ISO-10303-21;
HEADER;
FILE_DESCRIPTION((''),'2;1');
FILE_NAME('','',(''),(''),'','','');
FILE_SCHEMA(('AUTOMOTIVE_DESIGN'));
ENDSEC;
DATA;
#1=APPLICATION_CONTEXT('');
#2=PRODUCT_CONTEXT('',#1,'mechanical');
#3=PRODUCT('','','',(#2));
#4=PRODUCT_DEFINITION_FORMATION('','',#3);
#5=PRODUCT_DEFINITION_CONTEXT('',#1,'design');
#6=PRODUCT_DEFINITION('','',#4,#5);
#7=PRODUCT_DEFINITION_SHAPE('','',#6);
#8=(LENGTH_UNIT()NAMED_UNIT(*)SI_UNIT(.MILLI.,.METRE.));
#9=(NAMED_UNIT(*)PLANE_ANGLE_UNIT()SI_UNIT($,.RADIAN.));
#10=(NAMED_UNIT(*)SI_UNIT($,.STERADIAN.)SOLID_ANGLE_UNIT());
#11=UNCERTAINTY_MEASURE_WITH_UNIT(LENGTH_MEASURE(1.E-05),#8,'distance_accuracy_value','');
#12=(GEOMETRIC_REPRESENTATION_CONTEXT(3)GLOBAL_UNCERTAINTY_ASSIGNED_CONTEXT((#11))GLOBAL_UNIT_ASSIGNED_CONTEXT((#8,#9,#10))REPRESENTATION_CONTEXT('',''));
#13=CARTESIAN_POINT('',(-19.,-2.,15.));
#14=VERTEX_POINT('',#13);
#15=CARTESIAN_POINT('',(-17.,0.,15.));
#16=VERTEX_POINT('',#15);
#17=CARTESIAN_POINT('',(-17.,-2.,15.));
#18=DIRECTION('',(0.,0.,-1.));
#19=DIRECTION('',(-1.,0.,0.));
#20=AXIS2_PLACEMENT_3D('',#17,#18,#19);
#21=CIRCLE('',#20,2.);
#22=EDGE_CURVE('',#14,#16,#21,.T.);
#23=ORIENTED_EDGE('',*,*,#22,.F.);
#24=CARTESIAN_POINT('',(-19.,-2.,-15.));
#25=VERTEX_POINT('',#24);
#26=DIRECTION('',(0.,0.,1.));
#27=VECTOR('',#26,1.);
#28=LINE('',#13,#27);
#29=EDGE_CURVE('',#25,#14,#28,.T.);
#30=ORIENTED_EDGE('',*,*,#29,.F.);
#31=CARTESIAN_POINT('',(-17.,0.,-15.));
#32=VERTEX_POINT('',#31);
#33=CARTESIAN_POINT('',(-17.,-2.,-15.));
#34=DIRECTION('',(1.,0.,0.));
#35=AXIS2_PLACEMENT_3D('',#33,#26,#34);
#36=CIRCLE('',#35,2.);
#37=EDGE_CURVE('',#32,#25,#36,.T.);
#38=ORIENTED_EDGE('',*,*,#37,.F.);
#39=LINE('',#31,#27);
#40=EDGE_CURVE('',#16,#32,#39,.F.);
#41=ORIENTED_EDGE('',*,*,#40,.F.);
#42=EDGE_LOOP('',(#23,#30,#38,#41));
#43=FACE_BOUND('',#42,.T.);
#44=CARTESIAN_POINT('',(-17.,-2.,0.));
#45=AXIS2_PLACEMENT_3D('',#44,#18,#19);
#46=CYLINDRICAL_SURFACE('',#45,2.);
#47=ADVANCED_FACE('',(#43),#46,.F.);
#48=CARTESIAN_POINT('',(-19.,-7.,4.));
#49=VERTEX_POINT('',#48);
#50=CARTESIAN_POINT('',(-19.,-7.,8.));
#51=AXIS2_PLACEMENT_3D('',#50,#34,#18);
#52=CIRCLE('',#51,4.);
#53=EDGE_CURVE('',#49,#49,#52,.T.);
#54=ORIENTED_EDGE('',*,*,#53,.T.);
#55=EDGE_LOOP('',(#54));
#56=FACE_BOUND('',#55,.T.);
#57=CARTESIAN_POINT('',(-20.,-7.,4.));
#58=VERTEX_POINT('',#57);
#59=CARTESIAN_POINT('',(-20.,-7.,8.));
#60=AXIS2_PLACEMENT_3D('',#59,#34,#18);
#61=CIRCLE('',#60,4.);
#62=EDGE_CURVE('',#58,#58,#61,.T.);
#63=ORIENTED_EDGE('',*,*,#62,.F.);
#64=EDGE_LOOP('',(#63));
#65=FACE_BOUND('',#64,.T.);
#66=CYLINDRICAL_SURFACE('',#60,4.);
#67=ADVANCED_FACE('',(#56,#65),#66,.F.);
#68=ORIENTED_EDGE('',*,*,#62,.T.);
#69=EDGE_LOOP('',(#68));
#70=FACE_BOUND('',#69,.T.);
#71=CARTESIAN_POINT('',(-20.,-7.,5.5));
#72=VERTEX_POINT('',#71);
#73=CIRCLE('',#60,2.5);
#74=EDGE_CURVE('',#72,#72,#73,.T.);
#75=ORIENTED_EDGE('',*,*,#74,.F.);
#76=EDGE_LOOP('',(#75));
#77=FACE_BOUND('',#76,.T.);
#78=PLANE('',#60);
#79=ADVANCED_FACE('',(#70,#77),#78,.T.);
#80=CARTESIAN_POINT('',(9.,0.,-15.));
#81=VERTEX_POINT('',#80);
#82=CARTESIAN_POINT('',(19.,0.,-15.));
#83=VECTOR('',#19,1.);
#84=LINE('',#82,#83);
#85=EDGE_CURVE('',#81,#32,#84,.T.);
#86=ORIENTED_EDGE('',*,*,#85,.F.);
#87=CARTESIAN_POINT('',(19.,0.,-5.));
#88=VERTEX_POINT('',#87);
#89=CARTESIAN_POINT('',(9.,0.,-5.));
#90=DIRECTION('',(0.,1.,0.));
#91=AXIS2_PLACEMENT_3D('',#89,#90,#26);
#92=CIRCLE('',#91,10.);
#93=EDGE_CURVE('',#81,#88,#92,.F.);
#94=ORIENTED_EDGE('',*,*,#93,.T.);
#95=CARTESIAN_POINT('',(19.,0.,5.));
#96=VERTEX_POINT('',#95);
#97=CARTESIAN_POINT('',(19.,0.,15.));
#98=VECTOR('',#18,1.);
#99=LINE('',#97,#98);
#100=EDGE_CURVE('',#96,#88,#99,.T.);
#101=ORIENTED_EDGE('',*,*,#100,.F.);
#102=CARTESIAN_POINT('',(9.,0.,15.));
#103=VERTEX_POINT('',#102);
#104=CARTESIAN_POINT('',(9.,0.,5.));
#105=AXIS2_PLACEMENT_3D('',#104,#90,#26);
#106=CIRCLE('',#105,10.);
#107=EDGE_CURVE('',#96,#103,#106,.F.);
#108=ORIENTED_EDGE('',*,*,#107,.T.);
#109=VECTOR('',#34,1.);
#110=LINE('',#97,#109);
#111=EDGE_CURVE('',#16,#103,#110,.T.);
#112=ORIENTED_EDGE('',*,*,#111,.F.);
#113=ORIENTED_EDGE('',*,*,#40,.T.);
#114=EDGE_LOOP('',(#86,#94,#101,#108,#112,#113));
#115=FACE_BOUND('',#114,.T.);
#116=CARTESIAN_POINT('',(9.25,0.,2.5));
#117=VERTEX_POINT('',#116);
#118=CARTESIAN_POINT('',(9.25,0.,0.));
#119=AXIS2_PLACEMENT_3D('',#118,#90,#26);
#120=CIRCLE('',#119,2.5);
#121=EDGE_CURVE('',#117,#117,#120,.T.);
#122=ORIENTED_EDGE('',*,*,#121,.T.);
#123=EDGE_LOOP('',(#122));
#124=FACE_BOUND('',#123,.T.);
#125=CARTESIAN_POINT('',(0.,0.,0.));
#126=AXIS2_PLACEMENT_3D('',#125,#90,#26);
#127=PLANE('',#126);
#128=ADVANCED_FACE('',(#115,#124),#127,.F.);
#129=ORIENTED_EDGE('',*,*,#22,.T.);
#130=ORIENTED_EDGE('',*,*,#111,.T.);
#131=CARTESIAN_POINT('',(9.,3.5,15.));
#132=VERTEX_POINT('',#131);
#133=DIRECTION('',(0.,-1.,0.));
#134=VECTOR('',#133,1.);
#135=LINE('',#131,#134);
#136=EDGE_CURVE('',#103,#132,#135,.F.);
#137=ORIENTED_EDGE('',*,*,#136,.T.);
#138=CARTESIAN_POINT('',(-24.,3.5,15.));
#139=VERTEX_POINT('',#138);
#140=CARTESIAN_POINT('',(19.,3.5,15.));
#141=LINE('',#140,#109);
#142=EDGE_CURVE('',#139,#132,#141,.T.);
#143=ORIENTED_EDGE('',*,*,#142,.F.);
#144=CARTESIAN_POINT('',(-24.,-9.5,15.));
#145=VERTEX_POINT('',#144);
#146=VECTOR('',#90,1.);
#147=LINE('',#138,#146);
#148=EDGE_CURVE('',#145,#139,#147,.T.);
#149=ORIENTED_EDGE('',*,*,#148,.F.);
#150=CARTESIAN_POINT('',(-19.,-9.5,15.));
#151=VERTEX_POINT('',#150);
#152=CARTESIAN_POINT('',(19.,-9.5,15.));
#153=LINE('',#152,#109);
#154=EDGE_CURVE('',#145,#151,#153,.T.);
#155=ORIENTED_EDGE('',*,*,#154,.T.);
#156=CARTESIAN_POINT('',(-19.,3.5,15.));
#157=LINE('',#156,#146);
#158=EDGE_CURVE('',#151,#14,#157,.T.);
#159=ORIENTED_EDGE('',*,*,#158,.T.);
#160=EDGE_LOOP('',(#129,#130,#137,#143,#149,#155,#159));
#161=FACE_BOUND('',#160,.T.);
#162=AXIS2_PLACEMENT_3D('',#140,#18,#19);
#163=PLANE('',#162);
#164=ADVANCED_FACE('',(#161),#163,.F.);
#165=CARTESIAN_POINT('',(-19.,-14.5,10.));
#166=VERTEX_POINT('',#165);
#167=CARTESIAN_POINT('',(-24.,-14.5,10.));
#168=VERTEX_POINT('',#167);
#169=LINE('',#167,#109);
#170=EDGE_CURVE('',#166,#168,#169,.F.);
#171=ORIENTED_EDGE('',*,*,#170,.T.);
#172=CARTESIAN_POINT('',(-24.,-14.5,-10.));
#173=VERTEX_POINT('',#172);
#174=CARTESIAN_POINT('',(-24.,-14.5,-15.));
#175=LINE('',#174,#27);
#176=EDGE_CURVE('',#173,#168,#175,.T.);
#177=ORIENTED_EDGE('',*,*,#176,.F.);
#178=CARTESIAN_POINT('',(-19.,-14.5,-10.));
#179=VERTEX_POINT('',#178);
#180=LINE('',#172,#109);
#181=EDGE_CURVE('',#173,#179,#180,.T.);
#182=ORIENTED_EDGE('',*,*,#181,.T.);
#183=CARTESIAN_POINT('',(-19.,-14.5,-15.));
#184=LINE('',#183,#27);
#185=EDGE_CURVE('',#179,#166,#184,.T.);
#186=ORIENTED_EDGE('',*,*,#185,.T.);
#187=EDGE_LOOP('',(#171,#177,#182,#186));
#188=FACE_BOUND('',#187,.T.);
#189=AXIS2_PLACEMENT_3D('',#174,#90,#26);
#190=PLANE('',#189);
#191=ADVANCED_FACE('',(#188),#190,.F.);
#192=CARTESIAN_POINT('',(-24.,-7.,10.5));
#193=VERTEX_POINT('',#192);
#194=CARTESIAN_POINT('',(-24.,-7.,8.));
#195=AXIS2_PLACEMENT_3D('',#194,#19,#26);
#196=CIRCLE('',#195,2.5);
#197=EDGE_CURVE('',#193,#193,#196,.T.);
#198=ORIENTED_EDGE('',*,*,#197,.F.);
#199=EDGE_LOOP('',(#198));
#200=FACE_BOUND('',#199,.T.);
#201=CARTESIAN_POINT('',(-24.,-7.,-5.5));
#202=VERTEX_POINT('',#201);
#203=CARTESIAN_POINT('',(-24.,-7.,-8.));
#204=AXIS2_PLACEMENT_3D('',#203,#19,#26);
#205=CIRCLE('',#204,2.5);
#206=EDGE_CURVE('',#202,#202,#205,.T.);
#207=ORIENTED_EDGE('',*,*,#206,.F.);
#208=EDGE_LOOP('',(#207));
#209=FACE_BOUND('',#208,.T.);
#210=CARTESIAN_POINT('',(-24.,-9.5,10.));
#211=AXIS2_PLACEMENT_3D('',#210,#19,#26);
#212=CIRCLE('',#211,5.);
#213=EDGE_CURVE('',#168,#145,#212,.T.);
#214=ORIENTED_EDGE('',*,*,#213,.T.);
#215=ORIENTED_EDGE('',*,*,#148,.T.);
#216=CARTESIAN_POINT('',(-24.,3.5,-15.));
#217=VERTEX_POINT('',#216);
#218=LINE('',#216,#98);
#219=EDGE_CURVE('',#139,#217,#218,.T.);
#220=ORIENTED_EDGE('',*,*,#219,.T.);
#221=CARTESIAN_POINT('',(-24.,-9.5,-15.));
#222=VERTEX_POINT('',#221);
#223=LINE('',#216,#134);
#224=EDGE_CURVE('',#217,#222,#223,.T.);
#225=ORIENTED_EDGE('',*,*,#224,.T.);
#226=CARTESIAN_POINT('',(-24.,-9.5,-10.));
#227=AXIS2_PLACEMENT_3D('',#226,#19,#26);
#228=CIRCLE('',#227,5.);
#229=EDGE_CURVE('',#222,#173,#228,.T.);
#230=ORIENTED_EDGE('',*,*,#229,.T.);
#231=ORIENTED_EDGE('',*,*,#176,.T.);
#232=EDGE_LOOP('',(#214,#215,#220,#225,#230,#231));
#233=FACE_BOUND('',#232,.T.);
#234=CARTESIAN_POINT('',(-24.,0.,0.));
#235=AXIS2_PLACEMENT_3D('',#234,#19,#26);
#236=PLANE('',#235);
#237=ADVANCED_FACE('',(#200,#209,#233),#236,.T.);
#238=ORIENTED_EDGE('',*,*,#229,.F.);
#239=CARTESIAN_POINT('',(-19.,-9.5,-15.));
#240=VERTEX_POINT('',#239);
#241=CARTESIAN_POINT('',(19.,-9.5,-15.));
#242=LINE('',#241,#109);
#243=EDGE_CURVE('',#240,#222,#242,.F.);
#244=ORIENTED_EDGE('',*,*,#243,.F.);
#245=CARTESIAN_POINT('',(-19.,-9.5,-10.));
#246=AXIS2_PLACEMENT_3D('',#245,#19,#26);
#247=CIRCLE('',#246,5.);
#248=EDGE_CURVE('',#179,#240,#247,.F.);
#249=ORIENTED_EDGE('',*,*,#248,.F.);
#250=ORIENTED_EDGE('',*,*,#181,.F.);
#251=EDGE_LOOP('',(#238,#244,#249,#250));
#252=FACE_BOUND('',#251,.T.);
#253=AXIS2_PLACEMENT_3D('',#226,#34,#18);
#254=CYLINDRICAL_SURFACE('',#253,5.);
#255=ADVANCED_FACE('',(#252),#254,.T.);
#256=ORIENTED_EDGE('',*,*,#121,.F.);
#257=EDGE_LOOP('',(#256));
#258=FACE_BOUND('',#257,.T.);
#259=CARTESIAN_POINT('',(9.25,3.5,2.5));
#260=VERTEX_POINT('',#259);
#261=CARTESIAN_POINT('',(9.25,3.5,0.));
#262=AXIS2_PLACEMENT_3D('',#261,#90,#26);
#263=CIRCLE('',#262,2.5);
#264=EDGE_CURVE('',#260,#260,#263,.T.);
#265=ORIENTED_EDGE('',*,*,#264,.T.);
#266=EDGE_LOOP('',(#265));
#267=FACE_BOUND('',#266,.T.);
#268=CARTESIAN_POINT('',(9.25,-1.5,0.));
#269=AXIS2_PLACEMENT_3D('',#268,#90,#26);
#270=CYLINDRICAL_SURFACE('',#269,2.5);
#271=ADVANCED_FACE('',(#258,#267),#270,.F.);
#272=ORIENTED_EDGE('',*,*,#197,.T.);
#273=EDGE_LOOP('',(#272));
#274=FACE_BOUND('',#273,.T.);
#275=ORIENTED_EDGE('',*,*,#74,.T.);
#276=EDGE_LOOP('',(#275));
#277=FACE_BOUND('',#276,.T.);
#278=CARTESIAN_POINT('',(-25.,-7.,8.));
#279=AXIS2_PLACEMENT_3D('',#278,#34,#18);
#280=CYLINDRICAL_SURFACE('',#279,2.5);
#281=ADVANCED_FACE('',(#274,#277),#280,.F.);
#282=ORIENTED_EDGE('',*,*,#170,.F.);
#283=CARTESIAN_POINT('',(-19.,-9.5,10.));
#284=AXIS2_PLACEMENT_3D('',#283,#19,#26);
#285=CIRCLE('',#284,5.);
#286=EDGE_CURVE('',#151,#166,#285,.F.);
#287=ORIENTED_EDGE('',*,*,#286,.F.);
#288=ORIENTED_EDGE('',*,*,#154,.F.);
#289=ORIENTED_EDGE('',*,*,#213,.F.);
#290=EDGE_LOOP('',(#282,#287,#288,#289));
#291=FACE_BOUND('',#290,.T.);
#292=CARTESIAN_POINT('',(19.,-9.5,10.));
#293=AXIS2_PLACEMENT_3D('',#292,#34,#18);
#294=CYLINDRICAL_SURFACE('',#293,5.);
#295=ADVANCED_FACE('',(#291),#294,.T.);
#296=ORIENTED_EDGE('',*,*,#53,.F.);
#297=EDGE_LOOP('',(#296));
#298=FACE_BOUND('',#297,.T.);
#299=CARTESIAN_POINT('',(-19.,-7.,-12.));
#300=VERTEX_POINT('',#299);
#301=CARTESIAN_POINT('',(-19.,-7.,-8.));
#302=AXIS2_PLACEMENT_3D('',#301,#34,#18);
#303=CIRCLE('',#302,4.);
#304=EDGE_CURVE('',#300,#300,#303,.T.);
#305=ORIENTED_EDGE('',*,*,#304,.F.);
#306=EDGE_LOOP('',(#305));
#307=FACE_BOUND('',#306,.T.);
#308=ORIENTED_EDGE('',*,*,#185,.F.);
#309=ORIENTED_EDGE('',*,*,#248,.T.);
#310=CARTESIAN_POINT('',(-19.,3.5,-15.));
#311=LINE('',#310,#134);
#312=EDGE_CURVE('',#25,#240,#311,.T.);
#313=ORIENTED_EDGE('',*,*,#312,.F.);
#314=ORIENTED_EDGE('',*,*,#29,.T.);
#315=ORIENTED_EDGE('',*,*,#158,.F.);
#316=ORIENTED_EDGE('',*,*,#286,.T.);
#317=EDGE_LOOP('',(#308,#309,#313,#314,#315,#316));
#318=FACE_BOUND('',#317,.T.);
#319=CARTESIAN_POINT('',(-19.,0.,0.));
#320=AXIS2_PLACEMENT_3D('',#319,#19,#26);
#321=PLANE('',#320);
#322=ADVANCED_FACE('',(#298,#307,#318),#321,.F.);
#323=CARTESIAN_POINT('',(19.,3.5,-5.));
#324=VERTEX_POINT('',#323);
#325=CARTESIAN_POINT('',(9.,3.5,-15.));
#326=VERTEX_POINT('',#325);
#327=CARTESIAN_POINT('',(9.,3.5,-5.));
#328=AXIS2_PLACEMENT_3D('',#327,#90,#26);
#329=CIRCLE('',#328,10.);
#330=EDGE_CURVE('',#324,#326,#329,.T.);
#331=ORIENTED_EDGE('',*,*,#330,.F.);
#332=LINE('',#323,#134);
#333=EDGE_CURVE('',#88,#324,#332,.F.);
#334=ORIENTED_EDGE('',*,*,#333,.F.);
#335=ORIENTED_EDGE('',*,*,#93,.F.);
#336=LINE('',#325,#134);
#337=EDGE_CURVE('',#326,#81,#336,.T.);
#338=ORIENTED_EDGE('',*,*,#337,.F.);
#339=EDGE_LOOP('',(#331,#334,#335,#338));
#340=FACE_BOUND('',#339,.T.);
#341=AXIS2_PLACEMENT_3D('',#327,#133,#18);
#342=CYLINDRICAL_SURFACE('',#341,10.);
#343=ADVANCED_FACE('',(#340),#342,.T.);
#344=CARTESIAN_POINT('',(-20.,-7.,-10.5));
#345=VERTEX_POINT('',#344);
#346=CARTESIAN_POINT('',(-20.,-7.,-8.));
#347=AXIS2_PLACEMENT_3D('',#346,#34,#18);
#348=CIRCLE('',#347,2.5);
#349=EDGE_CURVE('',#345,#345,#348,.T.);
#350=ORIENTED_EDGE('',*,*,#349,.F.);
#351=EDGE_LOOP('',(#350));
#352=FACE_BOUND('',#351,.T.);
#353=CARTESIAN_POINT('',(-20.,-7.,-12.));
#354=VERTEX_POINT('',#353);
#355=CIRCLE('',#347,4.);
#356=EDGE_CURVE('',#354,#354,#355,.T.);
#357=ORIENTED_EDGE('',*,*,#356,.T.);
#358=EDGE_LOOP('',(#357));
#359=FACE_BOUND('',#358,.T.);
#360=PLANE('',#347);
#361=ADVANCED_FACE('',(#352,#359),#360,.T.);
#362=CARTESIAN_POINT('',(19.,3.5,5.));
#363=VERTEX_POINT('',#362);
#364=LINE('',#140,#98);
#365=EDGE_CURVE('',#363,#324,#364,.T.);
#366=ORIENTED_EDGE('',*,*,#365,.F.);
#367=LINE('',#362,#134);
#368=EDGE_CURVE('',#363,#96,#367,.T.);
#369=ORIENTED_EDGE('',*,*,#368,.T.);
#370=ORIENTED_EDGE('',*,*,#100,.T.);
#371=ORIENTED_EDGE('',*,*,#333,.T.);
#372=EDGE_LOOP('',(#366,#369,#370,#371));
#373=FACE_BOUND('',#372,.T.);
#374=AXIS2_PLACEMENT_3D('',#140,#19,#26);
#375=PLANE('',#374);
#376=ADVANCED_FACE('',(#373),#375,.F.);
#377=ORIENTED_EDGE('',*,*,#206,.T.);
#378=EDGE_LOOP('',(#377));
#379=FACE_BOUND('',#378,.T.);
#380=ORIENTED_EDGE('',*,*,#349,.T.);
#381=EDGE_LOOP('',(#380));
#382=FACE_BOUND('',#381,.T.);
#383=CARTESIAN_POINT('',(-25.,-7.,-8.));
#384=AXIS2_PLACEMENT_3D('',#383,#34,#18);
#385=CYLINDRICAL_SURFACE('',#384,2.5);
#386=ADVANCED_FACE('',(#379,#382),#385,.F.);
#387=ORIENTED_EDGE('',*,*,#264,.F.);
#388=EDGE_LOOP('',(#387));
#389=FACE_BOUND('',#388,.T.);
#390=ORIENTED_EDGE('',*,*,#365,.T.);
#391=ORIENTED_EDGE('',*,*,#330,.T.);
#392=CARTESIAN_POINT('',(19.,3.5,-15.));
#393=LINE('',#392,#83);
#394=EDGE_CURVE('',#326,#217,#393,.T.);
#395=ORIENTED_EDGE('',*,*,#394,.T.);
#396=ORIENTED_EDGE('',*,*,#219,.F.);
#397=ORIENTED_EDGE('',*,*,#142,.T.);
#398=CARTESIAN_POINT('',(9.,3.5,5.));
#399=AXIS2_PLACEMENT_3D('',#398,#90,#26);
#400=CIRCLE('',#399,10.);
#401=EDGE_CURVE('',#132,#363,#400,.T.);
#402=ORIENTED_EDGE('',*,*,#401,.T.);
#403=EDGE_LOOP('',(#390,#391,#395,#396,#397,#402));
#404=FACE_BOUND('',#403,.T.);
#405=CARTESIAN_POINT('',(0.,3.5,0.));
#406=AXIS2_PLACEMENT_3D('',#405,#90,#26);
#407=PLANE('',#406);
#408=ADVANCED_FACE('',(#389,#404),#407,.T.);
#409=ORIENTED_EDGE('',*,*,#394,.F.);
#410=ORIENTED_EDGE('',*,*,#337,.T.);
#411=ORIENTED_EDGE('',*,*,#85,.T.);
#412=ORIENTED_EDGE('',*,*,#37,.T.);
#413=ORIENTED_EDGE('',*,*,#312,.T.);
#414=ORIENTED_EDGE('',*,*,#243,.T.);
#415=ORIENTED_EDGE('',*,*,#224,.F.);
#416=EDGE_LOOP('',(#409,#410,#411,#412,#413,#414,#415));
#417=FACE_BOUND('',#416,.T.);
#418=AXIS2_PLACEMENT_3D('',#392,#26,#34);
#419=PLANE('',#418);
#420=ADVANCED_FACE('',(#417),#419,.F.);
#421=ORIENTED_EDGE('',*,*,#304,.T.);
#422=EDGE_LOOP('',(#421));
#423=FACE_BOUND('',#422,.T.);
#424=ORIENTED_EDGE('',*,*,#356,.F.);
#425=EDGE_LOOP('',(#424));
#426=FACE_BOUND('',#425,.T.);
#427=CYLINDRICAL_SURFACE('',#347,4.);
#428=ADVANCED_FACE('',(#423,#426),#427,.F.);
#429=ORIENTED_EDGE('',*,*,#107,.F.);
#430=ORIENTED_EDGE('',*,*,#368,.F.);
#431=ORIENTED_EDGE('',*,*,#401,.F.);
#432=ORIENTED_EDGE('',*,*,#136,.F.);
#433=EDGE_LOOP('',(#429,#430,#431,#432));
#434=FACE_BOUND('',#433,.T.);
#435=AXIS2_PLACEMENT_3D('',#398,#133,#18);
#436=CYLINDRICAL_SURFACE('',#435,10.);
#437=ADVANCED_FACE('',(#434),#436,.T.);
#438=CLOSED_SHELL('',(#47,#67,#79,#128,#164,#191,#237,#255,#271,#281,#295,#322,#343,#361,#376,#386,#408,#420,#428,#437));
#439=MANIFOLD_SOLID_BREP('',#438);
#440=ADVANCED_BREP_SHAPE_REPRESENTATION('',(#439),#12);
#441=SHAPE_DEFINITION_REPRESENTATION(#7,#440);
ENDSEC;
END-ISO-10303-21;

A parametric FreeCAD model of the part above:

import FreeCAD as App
import Part
import Sketcher

V = App.Vector
Q = App.Units.Quantity


def edges_at(feature, points):
    """Names of the edges that pass closest to the given points."""
    edges = feature.Shape.Edges
    near = lambda p: min(range(len(edges)), key=lambda i: edges[i].distToShape(Part.Vertex(*p))[0])
    return sorted({f"Edge{near(p) + 1}" for p in points})


def add_polygon(sketch, points):
    """Adds a closed chain of lines whose ends are joined by coincident constraints."""
    first, n = sketch.GeometryCount, len(points)
    for a, b in zip(points, points[1:] + points[:1]):
        sketch.addGeometry(Part.LineSegment(App.Vector(*a, 0), App.Vector(*b, 0)), False)
    for i in range(n):
        sketch.addConstraint(Sketcher.Constraint("Coincident", first + i, 2, first + (i + 1) % n, 1))

doc = App.newDocument("Part")
body = doc.addObject("PartDesign::Body", "Body")

sketch1 = body.newObject("Sketcher::SketchObject", "Sketch")
sketch1.AttachmentSupport = (doc.getObject("XZ_Plane"), [""])
sketch1.MapMode = "FlatFace"
add_polygon(sketch1, [(-19, -15), (-19, 15), (19, 15), (19, -15)])
sketch1.addConstraint(Sketcher.Constraint("Vertical", 0))
sketch1.addConstraint(Sketcher.Constraint("Horizontal", 1))
sketch1.addConstraint(Sketcher.Constraint("Vertical", 2))
sketch1.addConstraint(Sketcher.Constraint("Horizontal", 3))
sketch1.addConstraint(Sketcher.Constraint("Symmetric", 0, 2, 2, 2, -1, 1))
sketch1.addConstraint(Sketcher.Constraint("DistanceX", 1, 1, 1, 2, Q("38 mm")))
sketch1.addConstraint(Sketcher.Constraint("DistanceY", 0, 1, 0, 2, Q("30 mm")))
pad1 = body.newObject("PartDesign::Pad", "Pad")
pad1.Profile = sketch1
pad1.Length = 3.5
pad1.Reversed = True

sketch2 = body.newObject("Sketcher::SketchObject", "Sketch001")
sketch2.AttachmentSupport = (doc.getObject("YZ_Plane"), [""])
sketch2.MapMode = "FlatFace"
sketch2.AttachmentOffset = App.Placement(V(0, 0, -19), App.Rotation())
add_polygon(sketch2, [(4, -15), (-14, -15), (-14, 15), (4, 15)])
sketch2.addConstraint(Sketcher.Constraint("Horizontal", 0))
sketch2.addConstraint(Sketcher.Constraint("Vertical", 1))
sketch2.addConstraint(Sketcher.Constraint("Horizontal", 2))
sketch2.addConstraint(Sketcher.Constraint("Vertical", 3))
sketch2.addConstraint(Sketcher.Constraint("DistanceX", 0, 2, 0, 1, Q("18 mm")))
sketch2.addConstraint(Sketcher.Constraint("DistanceY", 1, 1, 1, 2, Q("30 mm")))
sketch2.addConstraint(Sketcher.Constraint("DistanceY", 0, 2, -1, 1, Q("15 mm")))
sketch2.addConstraint(Sketcher.Constraint("DistanceX", 0, 2, -1, 1, Q("14.5 mm")))
pad2 = body.newObject("PartDesign::Pad", "Pad001")
pad2.Profile = sketch2
pad2.Length = 5
pad2.Reversed = True

sketch3 = body.newObject("Sketcher::SketchObject", "Sketch002")
sketch3.AttachmentSupport = (doc.getObject("YZ_Plane"), [""])
sketch3.MapMode = "FlatFace"
sketch3.AttachmentOffset = App.Placement(V(0, 0, -19), App.Rotation())
sketch3.addGeometry(Part.Circle(V(-7, 8, 0), V(0, 0, 1), 4), False)
sketch3.addGeometry(Part.Circle(V(-7, -8, 0), V(0, 0, 1), 4), False)
sketch3.addConstraint(Sketcher.Constraint("Equal", 0, 1))
sketch3.addConstraint(Sketcher.Constraint("Symmetric", 0, 3, 1, 3, -1))
sketch3.addConstraint(Sketcher.Constraint("Diameter", 0, Q("8 mm")))
sketch3.addConstraint(Sketcher.Constraint("DistanceX", 0, 3, -1, 1, Q("7 mm")))
sketch3.addConstraint(Sketcher.Constraint("DistanceY", -1, 1, 0, 3, Q("8 mm")))
pocket1 = body.newObject("PartDesign::Pocket", "Pocket")
pocket1.Profile = sketch3
pocket1.Length = 1

sketch4 = body.newObject("Sketcher::SketchObject", "Sketch003")
sketch4.AttachmentSupport = (doc.getObject("YZ_Plane"), [""])
sketch4.MapMode = "FlatFace"
sketch4.AttachmentOffset = App.Placement(V(0, 0, -20), App.Rotation())
sketch4.addGeometry(Part.Circle(V(-7, 8, 0), V(0, 0, 1), 2.5), False)
sketch4.addGeometry(Part.Circle(V(-7, -8, 0), V(0, 0, 1), 2.5), False)
sketch4.addConstraint(Sketcher.Constraint("Equal", 0, 1))
sketch4.addConstraint(Sketcher.Constraint("Symmetric", 0, 3, 1, 3, -1))
sketch4.addConstraint(Sketcher.Constraint("Diameter", 0, Q("5 mm")))
sketch4.addConstraint(Sketcher.Constraint("DistanceX", 0, 3, -1, 1, Q("7 mm")))
sketch4.addConstraint(Sketcher.Constraint("DistanceY", -1, 1, 0, 3, Q("8 mm")))
pocket2 = body.newObject("PartDesign::Pocket", "Pocket001")
pocket2.Profile = sketch4
pocket2.Length = 5

sketch5 = body.newObject("Sketcher::SketchObject", "Sketch004")
sketch5.AttachmentSupport = (doc.getObject("XZ_Plane"), [""])
sketch5.MapMode = "FlatFace"
sketch5.AttachmentOffset = App.Placement(V(0, 0, -3.5), App.Rotation())
sketch5.addGeometry(Part.Circle(V(9.2, 0, 0), V(0, 0, 1), 2.5), False)
sketch5.addConstraint(Sketcher.Constraint("PointOnObject", 0, 3, -1))
sketch5.addConstraint(Sketcher.Constraint("Diameter", 0, Q("5 mm")))
sketch5.addConstraint(Sketcher.Constraint("DistanceX", -1, 1, 0, 3, Q("9.25 mm")))
pocket3 = body.newObject("PartDesign::Pocket", "Pocket002")
pocket3.Profile = sketch5
pocket3.Length = 5
pocket3.Reversed = True
doc.recompute()

fillet = body.newObject("PartDesign::Fillet", "Fillet")
fillet.Base = (pocket3, edges_at(pocket3, [(19, 1.75, -15), (19, 1.75, 15)]))
fillet.Radius = 10
doc.recompute()

fillet2 = body.newObject("PartDesign::Fillet", "Fillet001")
fillet2.Base = (fillet, edges_at(fillet, [(-19, 0, 0)]))
fillet2.Radius = 2
doc.recompute()

fillet3 = body.newObject("PartDesign::Fillet", "Fillet002")
fillet3.Base = (fillet2, edges_at(fillet2, [(-21.5, -14.5, -15), (-21.5, -14.5, 15)]))
fillet3.Radius = 5

doc.recompute()
